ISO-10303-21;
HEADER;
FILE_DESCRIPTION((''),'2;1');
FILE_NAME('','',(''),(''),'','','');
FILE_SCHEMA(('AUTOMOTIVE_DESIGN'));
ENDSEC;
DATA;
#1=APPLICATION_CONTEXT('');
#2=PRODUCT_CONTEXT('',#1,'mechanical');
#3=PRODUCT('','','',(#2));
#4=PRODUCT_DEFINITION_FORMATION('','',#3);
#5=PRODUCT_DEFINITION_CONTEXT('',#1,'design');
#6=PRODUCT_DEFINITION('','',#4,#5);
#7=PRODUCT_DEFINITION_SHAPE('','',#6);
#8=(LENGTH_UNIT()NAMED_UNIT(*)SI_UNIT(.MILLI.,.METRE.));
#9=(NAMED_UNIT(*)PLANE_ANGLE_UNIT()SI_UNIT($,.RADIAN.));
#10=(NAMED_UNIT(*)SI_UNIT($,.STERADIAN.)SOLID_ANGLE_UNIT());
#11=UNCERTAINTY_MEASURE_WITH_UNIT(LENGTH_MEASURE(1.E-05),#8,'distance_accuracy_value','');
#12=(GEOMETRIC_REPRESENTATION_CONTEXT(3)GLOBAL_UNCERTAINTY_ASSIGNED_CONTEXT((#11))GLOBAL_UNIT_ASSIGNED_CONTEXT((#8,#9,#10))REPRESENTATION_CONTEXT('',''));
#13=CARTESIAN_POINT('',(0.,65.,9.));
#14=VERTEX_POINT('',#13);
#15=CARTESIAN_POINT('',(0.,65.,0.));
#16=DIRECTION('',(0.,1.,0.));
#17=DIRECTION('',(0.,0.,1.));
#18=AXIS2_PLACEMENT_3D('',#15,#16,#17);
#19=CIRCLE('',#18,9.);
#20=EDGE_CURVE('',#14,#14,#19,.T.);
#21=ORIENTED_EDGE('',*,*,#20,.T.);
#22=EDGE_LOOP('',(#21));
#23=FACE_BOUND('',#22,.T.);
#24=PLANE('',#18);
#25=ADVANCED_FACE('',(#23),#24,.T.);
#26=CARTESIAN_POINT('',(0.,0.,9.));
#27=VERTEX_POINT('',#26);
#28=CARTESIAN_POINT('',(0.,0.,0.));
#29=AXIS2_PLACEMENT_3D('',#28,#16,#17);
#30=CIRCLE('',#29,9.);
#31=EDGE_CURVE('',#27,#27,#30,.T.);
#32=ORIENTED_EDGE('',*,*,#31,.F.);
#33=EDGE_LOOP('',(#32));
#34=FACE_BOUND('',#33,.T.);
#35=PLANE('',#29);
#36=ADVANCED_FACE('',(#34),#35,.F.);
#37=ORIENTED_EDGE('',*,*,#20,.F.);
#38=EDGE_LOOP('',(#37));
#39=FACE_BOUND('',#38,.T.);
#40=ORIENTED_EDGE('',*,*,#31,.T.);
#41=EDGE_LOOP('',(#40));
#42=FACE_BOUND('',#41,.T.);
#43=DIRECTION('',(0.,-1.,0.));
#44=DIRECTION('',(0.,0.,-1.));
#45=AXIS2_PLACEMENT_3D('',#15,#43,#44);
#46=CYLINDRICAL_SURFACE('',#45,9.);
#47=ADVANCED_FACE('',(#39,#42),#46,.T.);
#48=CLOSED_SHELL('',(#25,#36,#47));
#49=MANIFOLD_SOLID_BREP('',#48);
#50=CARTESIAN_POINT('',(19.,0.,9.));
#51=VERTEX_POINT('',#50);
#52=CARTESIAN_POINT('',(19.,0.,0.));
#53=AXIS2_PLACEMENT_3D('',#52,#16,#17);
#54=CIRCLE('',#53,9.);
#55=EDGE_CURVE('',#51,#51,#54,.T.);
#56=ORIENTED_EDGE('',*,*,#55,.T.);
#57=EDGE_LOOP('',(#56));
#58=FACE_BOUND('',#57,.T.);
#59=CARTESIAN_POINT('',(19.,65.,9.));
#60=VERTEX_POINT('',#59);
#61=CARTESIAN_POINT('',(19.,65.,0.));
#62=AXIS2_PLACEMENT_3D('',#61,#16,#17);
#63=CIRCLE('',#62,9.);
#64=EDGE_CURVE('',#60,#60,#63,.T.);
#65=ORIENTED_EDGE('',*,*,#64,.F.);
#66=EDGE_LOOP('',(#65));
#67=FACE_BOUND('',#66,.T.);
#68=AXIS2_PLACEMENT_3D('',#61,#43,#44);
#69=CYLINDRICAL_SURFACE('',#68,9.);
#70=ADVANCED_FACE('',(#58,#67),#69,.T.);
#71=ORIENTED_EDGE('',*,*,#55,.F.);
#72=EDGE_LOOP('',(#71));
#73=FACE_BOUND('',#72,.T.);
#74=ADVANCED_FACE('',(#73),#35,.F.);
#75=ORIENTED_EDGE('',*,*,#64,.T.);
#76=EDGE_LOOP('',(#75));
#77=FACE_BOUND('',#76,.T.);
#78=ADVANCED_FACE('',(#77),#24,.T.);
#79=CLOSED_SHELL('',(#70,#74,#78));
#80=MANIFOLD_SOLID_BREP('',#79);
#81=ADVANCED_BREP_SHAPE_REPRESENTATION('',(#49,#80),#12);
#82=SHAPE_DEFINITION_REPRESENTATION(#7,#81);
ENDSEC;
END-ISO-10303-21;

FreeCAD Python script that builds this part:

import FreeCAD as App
import Part
import Sketcher

V = App.Vector

doc = App.newDocument("Part")
body = doc.addObject("PartDesign::Body", "Body")

# Sketch on XZ plane
sketch1 = body.newObject("Sketcher::SketchObject", "Sketch")
sketch1.AttachmentSupport = (doc.getObject("XZ_Plane"), [""])
sketch1.MapMode = "FlatFace"
sketch1.addGeometry(Part.Circle(V(0, 0, 0), V(0, 0, 1), 9), False)
sketch1.addConstraint([
    Sketcher.Constraint("Coincident", 0, 3, -1, 1),
    Sketcher.Constraint("Diameter", 0, 18.0),
])
pad1 = body.newObject("PartDesign::Pad", "Pad")
pad1.Profile = sketch1
pad1.Length = 65
pad1.Reversed = True
body2 = doc.addObject("PartDesign::Body", "Body001")

# Sketch on XZ plane
sketch2 = body2.newObject("Sketcher::SketchObject", "Sketch001")
sketch2.AttachmentSupport = (doc.getObject("XZ_Plane001"), [""])
sketch2.MapMode = "FlatFace"
sketch2.addGeometry(Part.Circle(V(19, 0, 0), V(0, 0, 1), 9), False)
sketch2.addConstraint([
    Sketcher.Constraint("PointOnObject", 0, 3, -1),
    Sketcher.Constraint("Diameter", 0, 18.0),
    Sketcher.Constraint("DistanceX", -1, 1, 0, 3, 19.0),
])
pad2 = body2.newObject("PartDesign::Pad", "Pad001")
pad2.Profile = sketch2
pad2.Length = 65
pad2.Reversed = True

doc.recompute()
